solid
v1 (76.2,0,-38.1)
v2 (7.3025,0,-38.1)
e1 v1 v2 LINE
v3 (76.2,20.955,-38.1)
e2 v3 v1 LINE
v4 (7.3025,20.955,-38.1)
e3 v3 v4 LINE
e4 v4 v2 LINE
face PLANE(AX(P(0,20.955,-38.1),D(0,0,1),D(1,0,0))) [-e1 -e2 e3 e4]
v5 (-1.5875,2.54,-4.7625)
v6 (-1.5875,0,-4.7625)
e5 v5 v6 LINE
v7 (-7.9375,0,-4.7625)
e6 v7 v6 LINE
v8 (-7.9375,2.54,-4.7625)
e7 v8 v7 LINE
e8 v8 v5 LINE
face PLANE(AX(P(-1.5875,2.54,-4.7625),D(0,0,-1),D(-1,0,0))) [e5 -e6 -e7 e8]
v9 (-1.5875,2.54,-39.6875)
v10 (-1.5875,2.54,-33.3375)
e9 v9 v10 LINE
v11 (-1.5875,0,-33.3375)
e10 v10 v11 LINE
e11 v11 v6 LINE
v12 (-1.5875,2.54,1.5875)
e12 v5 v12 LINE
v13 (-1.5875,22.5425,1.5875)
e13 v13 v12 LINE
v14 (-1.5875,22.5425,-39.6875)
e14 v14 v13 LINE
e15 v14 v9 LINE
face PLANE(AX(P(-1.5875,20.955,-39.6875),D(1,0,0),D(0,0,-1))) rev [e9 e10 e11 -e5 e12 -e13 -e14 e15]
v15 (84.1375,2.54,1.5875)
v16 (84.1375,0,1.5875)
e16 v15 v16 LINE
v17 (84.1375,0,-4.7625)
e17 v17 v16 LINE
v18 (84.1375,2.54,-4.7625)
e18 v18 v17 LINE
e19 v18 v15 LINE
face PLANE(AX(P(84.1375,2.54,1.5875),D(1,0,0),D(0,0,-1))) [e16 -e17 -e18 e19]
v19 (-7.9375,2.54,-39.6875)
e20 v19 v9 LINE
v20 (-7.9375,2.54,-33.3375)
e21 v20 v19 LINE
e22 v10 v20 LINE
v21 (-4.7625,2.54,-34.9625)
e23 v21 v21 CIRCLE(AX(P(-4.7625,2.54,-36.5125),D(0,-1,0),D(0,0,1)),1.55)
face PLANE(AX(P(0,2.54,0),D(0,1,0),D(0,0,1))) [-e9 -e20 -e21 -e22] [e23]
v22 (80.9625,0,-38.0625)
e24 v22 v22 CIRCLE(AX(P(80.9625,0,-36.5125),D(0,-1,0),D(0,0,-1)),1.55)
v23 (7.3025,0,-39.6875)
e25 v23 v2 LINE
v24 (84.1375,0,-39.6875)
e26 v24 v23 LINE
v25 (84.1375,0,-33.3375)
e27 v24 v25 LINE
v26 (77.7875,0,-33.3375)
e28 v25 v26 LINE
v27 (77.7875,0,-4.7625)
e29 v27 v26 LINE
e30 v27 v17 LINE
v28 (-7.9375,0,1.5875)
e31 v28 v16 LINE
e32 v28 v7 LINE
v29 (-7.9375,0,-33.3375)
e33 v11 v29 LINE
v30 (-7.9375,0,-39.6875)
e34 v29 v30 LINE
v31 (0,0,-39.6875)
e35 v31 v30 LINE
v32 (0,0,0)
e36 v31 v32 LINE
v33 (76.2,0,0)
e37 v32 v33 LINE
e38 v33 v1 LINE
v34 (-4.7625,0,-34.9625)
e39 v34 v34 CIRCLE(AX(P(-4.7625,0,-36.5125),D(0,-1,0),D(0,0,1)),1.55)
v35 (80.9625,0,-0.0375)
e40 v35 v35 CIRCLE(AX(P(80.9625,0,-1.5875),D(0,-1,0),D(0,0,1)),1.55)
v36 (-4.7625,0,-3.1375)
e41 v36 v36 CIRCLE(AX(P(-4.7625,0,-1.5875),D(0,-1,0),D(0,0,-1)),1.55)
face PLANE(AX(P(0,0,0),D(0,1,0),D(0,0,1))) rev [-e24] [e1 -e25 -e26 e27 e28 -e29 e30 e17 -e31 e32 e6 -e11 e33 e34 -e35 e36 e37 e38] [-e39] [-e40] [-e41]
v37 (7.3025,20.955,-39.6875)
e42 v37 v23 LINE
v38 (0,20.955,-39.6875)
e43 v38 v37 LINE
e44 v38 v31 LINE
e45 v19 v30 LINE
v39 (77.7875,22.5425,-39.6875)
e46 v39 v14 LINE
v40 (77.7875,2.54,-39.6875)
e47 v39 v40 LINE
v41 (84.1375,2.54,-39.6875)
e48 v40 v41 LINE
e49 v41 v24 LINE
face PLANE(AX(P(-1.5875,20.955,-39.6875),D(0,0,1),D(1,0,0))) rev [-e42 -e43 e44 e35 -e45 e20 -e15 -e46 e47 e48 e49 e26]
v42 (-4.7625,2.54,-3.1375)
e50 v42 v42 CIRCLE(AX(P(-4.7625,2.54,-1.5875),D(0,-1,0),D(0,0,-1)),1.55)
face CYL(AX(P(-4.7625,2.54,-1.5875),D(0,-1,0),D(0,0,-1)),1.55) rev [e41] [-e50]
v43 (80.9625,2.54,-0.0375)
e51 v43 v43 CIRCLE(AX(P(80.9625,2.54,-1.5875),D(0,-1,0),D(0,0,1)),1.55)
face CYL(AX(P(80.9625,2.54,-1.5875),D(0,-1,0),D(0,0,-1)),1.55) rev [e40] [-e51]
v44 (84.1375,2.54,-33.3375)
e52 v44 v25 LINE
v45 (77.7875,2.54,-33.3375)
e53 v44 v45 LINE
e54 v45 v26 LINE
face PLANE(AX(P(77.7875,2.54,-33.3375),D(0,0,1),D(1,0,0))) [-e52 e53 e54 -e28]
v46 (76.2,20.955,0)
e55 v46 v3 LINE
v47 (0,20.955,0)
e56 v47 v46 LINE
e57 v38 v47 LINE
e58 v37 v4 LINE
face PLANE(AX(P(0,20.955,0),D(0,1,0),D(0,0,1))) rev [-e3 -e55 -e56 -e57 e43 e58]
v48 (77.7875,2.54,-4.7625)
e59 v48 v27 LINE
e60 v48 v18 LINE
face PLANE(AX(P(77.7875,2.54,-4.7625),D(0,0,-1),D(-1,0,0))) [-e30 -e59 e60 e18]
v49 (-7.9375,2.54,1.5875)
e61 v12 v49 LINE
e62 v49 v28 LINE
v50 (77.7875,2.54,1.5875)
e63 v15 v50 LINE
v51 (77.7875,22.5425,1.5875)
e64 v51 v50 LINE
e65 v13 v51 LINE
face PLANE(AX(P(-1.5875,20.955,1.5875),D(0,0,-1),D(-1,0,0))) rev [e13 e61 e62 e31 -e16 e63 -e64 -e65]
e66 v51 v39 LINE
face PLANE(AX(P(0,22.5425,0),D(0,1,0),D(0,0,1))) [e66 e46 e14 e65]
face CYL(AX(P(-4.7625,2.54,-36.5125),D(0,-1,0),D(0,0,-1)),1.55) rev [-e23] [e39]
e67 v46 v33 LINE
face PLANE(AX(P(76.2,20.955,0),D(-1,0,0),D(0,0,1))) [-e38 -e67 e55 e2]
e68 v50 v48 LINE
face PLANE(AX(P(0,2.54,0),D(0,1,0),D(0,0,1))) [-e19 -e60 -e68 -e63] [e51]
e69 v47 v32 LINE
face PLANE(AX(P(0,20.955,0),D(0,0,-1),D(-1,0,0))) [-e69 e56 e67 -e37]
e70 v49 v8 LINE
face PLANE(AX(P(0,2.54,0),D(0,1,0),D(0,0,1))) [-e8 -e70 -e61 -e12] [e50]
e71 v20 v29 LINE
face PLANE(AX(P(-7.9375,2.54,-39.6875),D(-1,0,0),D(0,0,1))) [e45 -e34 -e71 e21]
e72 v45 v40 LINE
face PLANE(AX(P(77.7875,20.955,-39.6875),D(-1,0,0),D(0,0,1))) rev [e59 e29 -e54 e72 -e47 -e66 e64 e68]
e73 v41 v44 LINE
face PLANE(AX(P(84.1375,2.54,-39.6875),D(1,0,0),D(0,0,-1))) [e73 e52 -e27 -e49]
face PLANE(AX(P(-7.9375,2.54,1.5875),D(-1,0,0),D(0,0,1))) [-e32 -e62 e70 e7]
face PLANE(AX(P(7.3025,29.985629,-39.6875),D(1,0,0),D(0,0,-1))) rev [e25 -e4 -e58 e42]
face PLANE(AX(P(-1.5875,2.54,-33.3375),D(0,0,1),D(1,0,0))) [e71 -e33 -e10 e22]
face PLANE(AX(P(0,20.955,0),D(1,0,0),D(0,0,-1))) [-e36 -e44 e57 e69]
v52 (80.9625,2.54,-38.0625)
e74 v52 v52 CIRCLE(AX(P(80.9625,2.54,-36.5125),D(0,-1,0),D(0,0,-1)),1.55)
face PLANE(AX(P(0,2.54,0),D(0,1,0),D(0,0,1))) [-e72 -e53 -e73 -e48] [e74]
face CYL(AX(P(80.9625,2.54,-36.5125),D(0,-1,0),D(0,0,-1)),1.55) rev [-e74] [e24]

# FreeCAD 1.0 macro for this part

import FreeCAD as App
import Part
import Sketcher
Q = App.Units.Quantity

doc = App.newDocument("Part")
body = doc.addObject("PartDesign::Body", "Body")

# Sketch on XZ plane
sketch1 = doc.addObject("Sketcher::SketchObject", "Sketch")
body.addObject(sketch1)
sketch1.AttachmentSupport = (doc.XZ_Plane, [""])
sketch1.MapMode = "FlatFace"
sketch1.addGeometry([
    Part.LineSegment(App.Vector(-2, -40, 0), App.Vector(-2, 2, 0)),  # 0
    Part.LineSegment(App.Vector(-2, 2, 0), App.Vector(78, 2, 0)),  # 1
    Part.LineSegment(App.Vector(78, 2, 0), App.Vector(78, -40, 0)),  # 2
    Part.LineSegment(App.Vector(78, -40, 0), App.Vector(-2, -40, 0)),  # 3
    Part.LineSegment(App.Vector(76, 0, 0), App.Vector(0, 0, 0)),  # 4
    Part.LineSegment(App.Vector(0, 0, 0), App.Vector(0, -38, 0)),  # 5
    Part.LineSegment(App.Vector(0, -38, 0), App.Vector(76, -38, 0)),  # 6
    Part.LineSegment(App.Vector(76, -38, 0), App.Vector(76, 0, 0)),  # 7
], False)
sketch1.addConstraint([
    Sketcher.Constraint("Coincident", 0, 2, 1, 1),
    Sketcher.Constraint("Coincident", 1, 2, 2, 1),
    Sketcher.Constraint("Coincident", 2, 2, 3, 1),
    Sketcher.Constraint("Coincident", 3, 2, 0, 1),
    Sketcher.Constraint("Coincident", 4, 2, 5, 1),
    Sketcher.Constraint("Coincident", 5, 2, 6, 1),
    Sketcher.Constraint("Coincident", 6, 2, 7, 1),
    Sketcher.Constraint("Coincident", 7, 2, 4, 1),
    Sketcher.Constraint("Vertical", 0),
    Sketcher.Constraint("Horizontal", 1),
    Sketcher.Constraint("Vertical", 2),
    Sketcher.Constraint("Horizontal", 3),
    Sketcher.Constraint("Horizontal", 4),
    Sketcher.Constraint("Vertical", 5),
    Sketcher.Constraint("Horizontal", 6),
    Sketcher.Constraint("Vertical", 7),
    Sketcher.Constraint("Coincident", 4, 2, -1, 1),
    Sketcher.Constraint("DistanceX", 4, 2, 4, 1, Q("3 in")),
    Sketcher.Constraint("DistanceY", 5, 2, 5, 1, Q("1.5 in")),
    Sketcher.Constraint("DistanceX", 1, 1, 1, 2, Q("3.125 in")),
    Sketcher.Constraint("DistanceY", 0, 1, 0, 2, Q("1.625 in")),
    Sketcher.Constraint("DistanceX", 0, 2, -1, 1, Q("0.0625 in")),
    Sketcher.Constraint("DistanceY", -1, 1, 0, 2, Q("0.0625 in")),
])
pad1 = doc.addObject("PartDesign::Pad", "Pad")
body.addObject(pad1)
pad1.Profile = sketch1
pad1.Length = Q("0.825 in")
pad1.Reversed = True

# Sketch on XZ plane
sketch2 = doc.addObject("Sketcher::SketchObject", "Sketch001")
body.addObject(sketch2)
sketch2.AttachmentSupport = (doc.XZ_Plane, [""])
sketch2.MapMode = "FlatFace"
sketch2.AttachmentOffset = App.Placement(App.Vector(0, 0, -0.825 * 25.4), App.Rotation())
sketch2.addGeometry([
    Part.LineSegment(App.Vector(-2, -40, 0), App.Vector(-2, 2, 0)),
    Part.LineSegment(App.Vector(-2, 2, 0), App.Vector(78, 2, 0)),
    Part.LineSegment(App.Vector(78, 2, 0), App.Vector(78, -40, 0)),
    Part.LineSegment(App.Vector(78, -40, 0), App.Vector(-2, -40, 0)),
], False)
sketch2.addConstraint([
    Sketcher.Constraint("Coincident", 0, 2, 1, 1),
    Sketcher.Constraint("Coincident", 1, 2, 2, 1),
    Sketcher.Constraint("Coincident", 2, 2, 3, 1),
    Sketcher.Constraint("Coincident", 3, 2, 0, 1),
    Sketcher.Constraint("Vertical", 0),
    Sketcher.Constraint("Horizontal", 1),
    Sketcher.Constraint("Vertical", 2),
    Sketcher.Constraint("Horizontal", 3),
    Sketcher.Constraint("DistanceX", 1, 1, 1, 2, Q("3.125 in")),
    Sketcher.Constraint("DistanceY", 0, 1, 0, 2, Q("1.625 in")),
    Sketcher.Constraint("DistanceX", 0, 2, -1, 1, Q("0.0625 in")),
    Sketcher.Constraint("DistanceY", -1, 1, 0, 2, Q("0.0625 in")),
])
pad2 = doc.addObject("PartDesign::Pad", "Pad001")
body.addObject(pad2)
pad2.Profile = sketch2
pad2.Length = Q("0.0625 in")
pad2.Reversed = True

# Sketch on XZ plane
sketch3 = doc.addObject("Sketcher::SketchObject", "Sketch002")
body.addObject(sketch3)
sketch3.AttachmentSupport = (doc.XZ_Plane, [""])
sketch3.MapMode = "FlatFace"
sketch3.addGeometry([
    Part.LineSegment(App.Vector(77.8, -33.3, 0), App.Vector(77.8, -39.7, 0)),  # 0
    Part.LineSegment(App.Vector(77.8, -39.7, 0), App.Vector(84.1, -39.7, 0)),  # 1
    Part.LineSegment(App.Vector(84.1, -39.7, 0), App.Vector(84.1, -33.3, 0)),  # 2
    Part.LineSegment(App.Vector(84.1, -33.3, 0), App.Vector(77.8, -33.3, 0)),  # 3
    Part.Circle(App.Vector(81, -36.5, 0), App.Vector(0, 0, 1), 1.6),  # 4
    Part.LineSegment(App.Vector(77.8, 1.6, 0), App.Vector(77.8, -4.8, 0)),  # 5
    Part.LineSegment(App.Vector(77.8, -4.8, 0), App.Vector(84.1, -4.8, 0)),  # 6
    Part.LineSegment(App.Vector(84.1, -4.8, 0), App.Vector(84.1, 1.6, 0)),  # 7
    Part.LineSegment(App.Vector(84.1, 1.6, 0), App.Vector(77.8, 1.6, 0)),  # 8
    Part.Circle(App.Vector(81, -1.6, 0), App.Vector(0, 0, 1), 1.6),  # 9
    Part.LineSegment(App.Vector(-7.9, 1.6, 0), App.Vector(-7.9, -4.8, 0)),  # 10
    Part.LineSegment(App.Vector(-7.9, -4.8, 0), App.Vector(-1.6, -4.8, 0)),  # 11
    Part.LineSegment(App.Vector(-1.6, -4.8, 0), App.Vector(-1.6, 1.6, 0)),  # 12
    Part.LineSegment(App.Vector(-1.6, 1.6, 0), App.Vector(-7.9, 1.6, 0)),  # 13
    Part.Circle(App.Vector(-4.8, -1.6, 0), App.Vector(0, 0, 1), 1.6),  # 14
    Part.LineSegment(App.Vector(-7.9, -33.3, 0), App.Vector(-7.9, -39.7, 0)),  # 15
    Part.LineSegment(App.Vector(-7.9, -39.7, 0), App.Vector(-1.6, -39.7, 0)),  # 16
    Part.LineSegment(App.Vector(-1.6, -39.7, 0), App.Vector(-1.6, -33.3, 0)),  # 17
    Part.LineSegment(App.Vector(-1.6, -33.3, 0), App.Vector(-7.9, -33.3, 0)),  # 18
    Part.Circle(App.Vector(-4.8, -36.5, 0), App.Vector(0, 0, 1), 1.6),  # 19
], False)
sketch3.addConstraint([
    Sketcher.Constraint("Coincident", 0, 2, 1, 1),
    Sketcher.Constraint("Coincident", 1, 2, 2, 1),
    Sketcher.Constraint("Coincident", 2, 2, 3, 1),
    Sketcher.Constraint("Coincident", 3, 2, 0, 1),
    Sketcher.Constraint("Coincident", 5, 2, 6, 1),
    Sketcher.Constraint("Coincident", 6, 2, 7, 1),
    Sketcher.Constraint("Coincident", 7, 2, 8, 1),
    Sketcher.Constraint("Coincident", 8, 2, 5, 1),
    Sketcher.Constraint("Coincident", 10, 2, 11, 1),
    Sketcher.Constraint("Coincident", 11, 2, 12, 1),
    Sketcher.Constraint("Coincident", 12, 2, 13, 1),
    Sketcher.Constraint("Coincident", 13, 2, 10, 1),
    Sketcher.Constraint("Coincident", 15, 2, 16, 1),
    Sketcher.Constraint("Coincident", 16, 2, 17, 1),
    Sketcher.Constraint("Coincident", 17, 2, 18, 1),
    Sketcher.Constraint("Coincident", 18, 2, 15, 1),
    Sketcher.Constraint("Vertical", 0),
    Sketcher.Constraint("Horizontal", 1),
    Sketcher.Constraint("Vertical", 2),
    Sketcher.Constraint("Horizontal", 3),
    Sketcher.Constraint("Vertical", 5),
    Sketcher.Constraint("Horizontal", 6),
    Sketcher.Constraint("Vertical", 7),
    Sketcher.Constraint("Horizontal", 8),
    Sketcher.Constraint("Vertical", 10),
    Sketcher.Constraint("Horizontal", 11),
    Sketcher.Constraint("Vertical", 12),
    Sketcher.Constraint("Horizontal", 13),
    Sketcher.Constraint("Vertical", 15),
    Sketcher.Constraint("Horizontal", 16),
    Sketcher.Constraint("Vertical", 17),
    Sketcher.Constraint("Horizontal", 18),
    Sketcher.Constraint("Equal", 4, 9),
    Sketcher.Constraint("Equal", 9, 14),
    Sketcher.Constraint("Equal", 14, 19),
    Sketcher.Constraint("Horizontal", 9, 3, 14, 3),
    Sketcher.Constraint("Horizontal", 4, 3, 19, 3),
    Sketcher.Constraint("Horizontal", 6, 2, 10, 2),
    Sketcher.Constraint("Horizontal", 8, 2, 12, 2),
    Sketcher.Constraint("Horizontal", 1, 2, 15, 2),
    Sketcher.Constraint("Horizontal", 3, 2, 17, 2),
    Sketcher.Constraint("Vertical", 4, 3, 9, 3),
    Sketcher.Constraint("Vertical", 14, 3, 19, 3),
    Sketcher.Constraint("Vertical", 3, 2, 5, 2),
    Sketcher.Constraint("Vertical", 2, 2, 6, 2),
    Sketcher.Constraint("Vertical", 13, 2, 15, 2),
    Sketcher.Constraint("Vertical", 12, 2, 16, 2),
    Sketcher.Constraint("Equal", 8, 11),
    Sketcher.Constraint("Equal", 18, 0),
    Sketcher.Constraint("Equal", 2, 5),
    Sketcher.Constraint("DistanceX", 1, 1, 1, 2, Q("0.25 in")),
    Sketcher.Constraint("DistanceY", 0, 2, 9, 3, Q("1.5 in")),
    Sketcher.Constraint("DistanceX", 19, 3, 1, 2, Q("3.5 in")),
    Sketcher.Constraint("DistanceX", 10, 2, 9, 3, Q("3.5 in")),
    Sketcher.Constraint("DistanceY", 19, 3, 12, 2, Q("1.5 in")),
    Sketcher.Constraint("Diameter", 4, 3.1),
    Sketcher.Constraint("DistanceX", -1, 1, 4, 3, Q("3.1875 in")),
    Sketcher.Constraint("DistanceY", 4, 3, -1, 1, Q("1.4375 in")),
    Sketcher.Constraint("DistanceY", 9, 3, -1, 1, Q("0.0625 in")),
    Sketcher.Constraint("DistanceX", 14, 3, -1, 1, Q("0.1875 in")),
])
pad3 = doc.addObject("PartDesign::Pad", "Pad002")
body.addObject(pad3)
pad3.Profile = sketch3
pad3.Length = Q("0.1 in")
pad3.Reversed = True

# Sketch on XZ plane
sketch4 = doc.addObject("Sketcher::SketchObject", "Sketch003")
body.addObject(sketch4)
sketch4.AttachmentSupport = (doc.XZ_Plane, [""])
sketch4.MapMode = "FlatFace"
sketch4.addGeometry([
    Part.LineSegment(App.Vector(-1.6, -38.1, 0), App.Vector(-1.6, -39.7, 0)),
    Part.LineSegment(App.Vector(-1.6, -39.7, 0), App.Vector(7.3, -39.7, 0)),
    Part.LineSegment(App.Vector(7.3, -39.7, 0), App.Vector(7.3, -38.1, 0)),
    Part.LineSegment(App.Vector(7.3, -38.1, 0), App.Vector(-1.6, -38.1, 0)),
], False)
sketch4.addConstraint([
    Sketcher.Constraint("Coincident", 0, 2, 1, 1),
    Sketcher.Constraint("Coincident", 1, 2, 2, 1),
    Sketcher.Constraint("Coincident", 2, 2, 3, 1),
    Sketcher.Constraint("Coincident", 3, 2, 0, 1),
    Sketcher.Constraint("Vertical", 0),
    Sketcher.Constraint("Horizontal", 1),
    Sketcher.Constraint("Vertical", 2),
    Sketcher.Constraint("Horizontal", 3),
    Sketcher.Constraint("DistanceX", 1, 1, 1, 2, Q("0.35 in")),
    Sketcher.Constraint("DistanceY", 2, 2, -1, 1, Q("1.5 in")),
    Sketcher.Constraint("DistanceY", 0, 2, 0, 1, Q("0.0625 in")),
    Sketcher.Constraint("DistanceX", 0, 2, -1, 1, Q("0.0625 in")),
])
pocket1 = doc.addObject("PartDesign::Pocket", "Pocket")
body.addObject(pocket1)
pocket1.Profile = sketch4
pocket1.Length = Q("0.825 in")

# Sketch on XZ plane
sketch5 = doc.addObject("Sketcher::SketchObject", "Sketch004")
body.addObject(sketch5)
sketch5.AttachmentSupport = (doc.XZ_Plane, [""])
sketch5.MapMode = "FlatFace"
sketch5.addGeometry([
    Part.LineSegment(App.Vector(-1.6, -38.1, 0), App.Vector(-1.6, -39.7, 0)),
    Part.LineSegment(App.Vector(-1.6, -39.7, 0), App.Vector(0, -39.7, 0)),
    Part.LineSegment(App.Vector(0, -39.7, 0), App.Vector(0, -38.1, 0)),
    Part.LineSegment(App.Vector(0, -38.1, 0), App.Vector(-1.6, -38.1, 0)),
], False)
sketch5.addConstraint([
    Sketcher.Constraint("Coincident", 0, 2, 1, 1),
    Sketcher.Constraint("Coincident", 1, 2, 2, 1),
    Sketcher.Constraint("Coincident", 2, 2, 3, 1),
    Sketcher.Constraint("Coincident", 3, 2, 0, 1),
    Sketcher.Constraint("Vertical", 0),
    Sketcher.Constraint("Horizontal", 1),
    Sketcher.Constraint("Vertical", 2),
    Sketcher.Constraint("Horizontal", 3),
    Sketcher.Constraint("PointOnObject", 1, 2, -2),
    Sketcher.Constraint("Equal", 3, 0),
    Sketcher.Constraint("DistanceY", 2, 2, -1, 1, Q("1.5 in")),
    Sketcher.Constraint("DistanceX", 1, 1, 1, 2, Q("0.0625 in")),
])
pad4 = doc.addObject("PartDesign::Pad", "Pad003")
body.addObject(pad4)
pad4.Profile = sketch5
pad4.Type = "UpToFirst"
pad4.Reversed = True

doc.recompute()
